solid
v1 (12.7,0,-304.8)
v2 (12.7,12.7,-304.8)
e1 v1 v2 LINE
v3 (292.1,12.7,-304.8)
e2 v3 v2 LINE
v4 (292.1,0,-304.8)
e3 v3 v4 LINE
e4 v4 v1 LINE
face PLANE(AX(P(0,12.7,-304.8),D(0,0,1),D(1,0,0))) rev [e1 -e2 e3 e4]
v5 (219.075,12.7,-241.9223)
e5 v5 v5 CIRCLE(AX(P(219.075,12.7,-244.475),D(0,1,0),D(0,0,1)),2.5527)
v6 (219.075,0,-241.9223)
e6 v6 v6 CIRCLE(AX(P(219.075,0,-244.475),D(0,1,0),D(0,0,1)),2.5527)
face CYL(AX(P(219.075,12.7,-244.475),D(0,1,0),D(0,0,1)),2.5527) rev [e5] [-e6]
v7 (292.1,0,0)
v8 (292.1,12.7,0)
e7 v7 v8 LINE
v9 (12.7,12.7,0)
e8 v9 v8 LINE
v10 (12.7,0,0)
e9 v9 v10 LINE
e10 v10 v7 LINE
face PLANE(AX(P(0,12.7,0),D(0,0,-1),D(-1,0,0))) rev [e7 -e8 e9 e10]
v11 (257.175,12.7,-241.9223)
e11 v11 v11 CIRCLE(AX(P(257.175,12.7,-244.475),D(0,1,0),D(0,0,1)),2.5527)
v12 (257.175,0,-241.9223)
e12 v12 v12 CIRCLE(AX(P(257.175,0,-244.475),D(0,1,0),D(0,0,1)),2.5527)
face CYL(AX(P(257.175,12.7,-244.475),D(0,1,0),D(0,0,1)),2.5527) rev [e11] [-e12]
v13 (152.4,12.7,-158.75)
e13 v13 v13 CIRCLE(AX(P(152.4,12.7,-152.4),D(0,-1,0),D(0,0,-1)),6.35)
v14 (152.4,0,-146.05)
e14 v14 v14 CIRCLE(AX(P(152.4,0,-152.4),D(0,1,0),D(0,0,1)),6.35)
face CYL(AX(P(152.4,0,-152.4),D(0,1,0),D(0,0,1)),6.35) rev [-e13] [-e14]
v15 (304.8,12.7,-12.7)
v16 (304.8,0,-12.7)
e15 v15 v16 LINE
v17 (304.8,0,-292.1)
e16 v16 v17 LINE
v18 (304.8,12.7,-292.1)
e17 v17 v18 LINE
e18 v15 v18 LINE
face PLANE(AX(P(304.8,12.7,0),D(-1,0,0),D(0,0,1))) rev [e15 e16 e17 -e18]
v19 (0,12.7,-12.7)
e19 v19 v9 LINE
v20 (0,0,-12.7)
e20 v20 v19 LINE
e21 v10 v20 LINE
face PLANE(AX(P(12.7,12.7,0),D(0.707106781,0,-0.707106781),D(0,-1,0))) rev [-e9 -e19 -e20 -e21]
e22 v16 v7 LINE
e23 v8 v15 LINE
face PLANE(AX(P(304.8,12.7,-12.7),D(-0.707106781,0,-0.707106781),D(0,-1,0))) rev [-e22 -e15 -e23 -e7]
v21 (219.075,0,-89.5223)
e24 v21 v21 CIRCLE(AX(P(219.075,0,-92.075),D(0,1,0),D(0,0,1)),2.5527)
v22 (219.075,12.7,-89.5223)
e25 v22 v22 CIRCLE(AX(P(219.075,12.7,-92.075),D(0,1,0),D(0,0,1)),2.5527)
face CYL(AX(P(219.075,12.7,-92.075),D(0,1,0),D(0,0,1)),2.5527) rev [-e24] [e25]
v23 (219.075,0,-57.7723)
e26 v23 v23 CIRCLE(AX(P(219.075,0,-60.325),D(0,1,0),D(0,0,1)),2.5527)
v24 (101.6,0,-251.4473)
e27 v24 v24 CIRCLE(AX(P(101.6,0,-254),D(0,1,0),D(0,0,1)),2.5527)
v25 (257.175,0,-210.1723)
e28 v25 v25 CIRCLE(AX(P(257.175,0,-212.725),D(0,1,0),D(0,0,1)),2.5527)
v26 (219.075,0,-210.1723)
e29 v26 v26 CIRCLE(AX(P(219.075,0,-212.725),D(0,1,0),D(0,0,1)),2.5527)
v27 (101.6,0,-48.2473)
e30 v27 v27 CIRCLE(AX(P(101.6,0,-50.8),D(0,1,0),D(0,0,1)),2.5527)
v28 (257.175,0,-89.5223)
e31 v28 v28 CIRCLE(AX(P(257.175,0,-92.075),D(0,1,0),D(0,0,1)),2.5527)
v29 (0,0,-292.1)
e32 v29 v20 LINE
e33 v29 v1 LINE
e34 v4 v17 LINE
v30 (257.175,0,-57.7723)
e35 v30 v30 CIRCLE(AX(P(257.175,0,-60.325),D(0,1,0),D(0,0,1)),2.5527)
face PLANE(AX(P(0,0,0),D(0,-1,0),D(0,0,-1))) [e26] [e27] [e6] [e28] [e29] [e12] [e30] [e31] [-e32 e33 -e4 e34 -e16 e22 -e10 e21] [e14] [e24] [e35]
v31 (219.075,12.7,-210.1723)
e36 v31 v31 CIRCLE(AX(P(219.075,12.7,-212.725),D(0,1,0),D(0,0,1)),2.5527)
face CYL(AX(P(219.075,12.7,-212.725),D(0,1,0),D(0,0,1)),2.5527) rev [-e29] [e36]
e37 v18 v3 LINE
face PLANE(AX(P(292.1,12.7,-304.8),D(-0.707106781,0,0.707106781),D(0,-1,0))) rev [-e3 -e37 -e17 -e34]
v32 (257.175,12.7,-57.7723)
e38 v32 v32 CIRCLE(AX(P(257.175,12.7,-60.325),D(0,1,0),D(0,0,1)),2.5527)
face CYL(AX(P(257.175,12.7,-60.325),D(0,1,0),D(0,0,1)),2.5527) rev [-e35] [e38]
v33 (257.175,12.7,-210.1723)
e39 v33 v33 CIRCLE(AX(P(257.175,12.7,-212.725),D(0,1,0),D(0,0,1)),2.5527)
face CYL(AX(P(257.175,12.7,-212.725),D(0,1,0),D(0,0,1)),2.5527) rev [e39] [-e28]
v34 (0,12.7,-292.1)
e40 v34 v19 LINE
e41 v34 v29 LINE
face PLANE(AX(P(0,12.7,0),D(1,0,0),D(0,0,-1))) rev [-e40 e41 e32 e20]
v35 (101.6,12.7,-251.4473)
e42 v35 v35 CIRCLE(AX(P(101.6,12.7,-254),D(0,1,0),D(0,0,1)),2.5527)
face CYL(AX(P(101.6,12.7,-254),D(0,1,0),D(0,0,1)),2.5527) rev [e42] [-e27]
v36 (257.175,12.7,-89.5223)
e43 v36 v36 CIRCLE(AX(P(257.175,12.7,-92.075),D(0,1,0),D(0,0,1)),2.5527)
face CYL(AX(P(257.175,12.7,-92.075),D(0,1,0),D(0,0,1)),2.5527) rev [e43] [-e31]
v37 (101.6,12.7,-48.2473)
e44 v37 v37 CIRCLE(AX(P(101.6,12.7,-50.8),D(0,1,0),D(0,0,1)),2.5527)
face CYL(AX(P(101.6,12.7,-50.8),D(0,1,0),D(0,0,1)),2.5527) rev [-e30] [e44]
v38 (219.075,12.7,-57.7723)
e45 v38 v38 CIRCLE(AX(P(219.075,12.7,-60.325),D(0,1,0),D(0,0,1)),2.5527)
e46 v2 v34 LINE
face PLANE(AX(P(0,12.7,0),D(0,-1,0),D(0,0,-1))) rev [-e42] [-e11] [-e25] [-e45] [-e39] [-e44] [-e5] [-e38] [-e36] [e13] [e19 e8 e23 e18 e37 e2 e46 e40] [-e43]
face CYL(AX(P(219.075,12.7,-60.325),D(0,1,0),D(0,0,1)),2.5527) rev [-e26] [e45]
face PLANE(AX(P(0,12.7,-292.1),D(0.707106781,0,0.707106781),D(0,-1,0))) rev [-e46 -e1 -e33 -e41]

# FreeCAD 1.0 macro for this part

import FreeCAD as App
import Part
import Sketcher
from FreeCAD import Vector
Q = App.Units.Quantity


def edges_at(feature, points):
    """Names of the edges that pass closest to the given points."""
    edges = feature.Shape.Edges
    near = lambda p: min(range(len(edges)), key=lambda i: edges[i].distToShape(Part.Vertex(*p))[0])
    return sorted({f"Edge{near(p) + 1}" for p in points})


def add_polygon(sketch, points):
    """Adds a closed chain of lines whose ends are joined by coincident constraints."""
    first, n = sketch.GeometryCount, len(points)
    for a, b in zip(points, points[1:] + points[:1]):
        sketch.addGeometry(Part.LineSegment(App.Vector(*a, 0), App.Vector(*b, 0)), False)
    for i in range(n):
        sketch.addConstraint(Sketcher.Constraint("Coincident", first + i, 2, first + (i + 1) % n, 1))

doc = App.newDocument("Part")
params = doc.addObject("Spreadsheet::Sheet", "Params")
for row, (alias, value) in enumerate([
    ("sketch1_width", "12 in"),
    ("pad1_length", "0.5 in"),
    ("chamfer_size", "0.5 in"),
    ("sketch2_diameter", "0.201 in"),
    ("hole_diameter", "0.201 in"),
    ("sketch3_diameter", "0.5 in"),
    ("sketch4_diameter", "0.201 in"),
    ("hole2_diameter", "0.201 in"),
], start=1):
    params.set(f"A{row}", alias)
    params.set(f"B{row}", "=" + value)
    params.setAlias(f"B{row}", alias)

body = doc.addObject("PartDesign::Body", "Body")

# Sketch on XZ plane
sketch1 = doc.addObject("Sketcher::SketchObject", "Sketch")
body.addObject(sketch1)
sketch1.AttachmentSupport = (doc.XZ_Plane, [""])
sketch1.MapMode = "FlatFace"
add_polygon(sketch1, [(0, -305), (0, 0), (305, 0), (305, -305)])  # lines 0-3
sketch1.addConstraint(Sketcher.Constraint("Vertical", 0))
sketch1.addConstraint(Sketcher.Constraint("Horizontal", 1))
sketch1.addConstraint(Sketcher.Constraint("Vertical", 2))
sketch1.addConstraint(Sketcher.Constraint("Horizontal", 3))
sketch1.addConstraint(Sketcher.Constraint("Coincident", 0, 2, -1, 1))
sketch1.addConstraint(Sketcher.Constraint("Equal", 3, 0))
sketch1.addConstraint(Sketcher.Constraint("DistanceX", 1, 1, 1, 2, Q("12 in")))
sketch1.setExpression("Constraints[10]", "Params.sketch1_width")
pad1 = doc.addObject("PartDesign::Pad", "Pad")
body.addObject(pad1)
pad1.Profile = sketch1
pad1.setExpression("Length", "Params.pad1_length")
pad1.Reversed = True
doc.recompute()

chamfer = doc.addObject("PartDesign::Chamfer", "Chamfer")
body.addObject(chamfer)
chamfer.Base = (pad1, edges_at(pad1, [
    (0, 6.35, -304.8),
    (304.8, 6.35, -304.8),
    (304.8, 6.35, 0),
    (0, 6.35, 0),
]))
chamfer.setExpression("Size", "Params.chamfer_size")

# Sketch on XZ plane
sketch2 = doc.addObject("Sketcher::SketchObject", "Sketch001")
body.addObject(sketch2)
sketch2.AttachmentSupport = (doc.XZ_Plane, [""])
sketch2.MapMode = "FlatFace"
sketch2.AttachmentOffset = App.Placement(Vector(0, 0, -0.5 * 25.4), App.Rotation())
sketch2.addGeometry(Part.Circle(Vector(101.6, -50.8, 0), Vector(0, 0, 1), 2.6), False)
sketch2.addGeometry(Part.Circle(Vector(101.6, -254, 0), Vector(0, 0, 1), 2.6), False)
sketch2.addConstraint(Sketcher.Constraint("Equal", 0, 1))
sketch2.addConstraint(Sketcher.Constraint("Vertical", 0, 3, 1, 3))
sketch2.addConstraint(Sketcher.Constraint("Diameter", 0, Q("0.201 in")))
sketch2.addConstraint(Sketcher.Constraint("DistanceX", -1, 1, 0, 3, Q("4 in")))
sketch2.addConstraint(Sketcher.Constraint("DistanceY", 0, 3, -1, 1, Q("2 in")))
sketch2.addConstraint(Sketcher.Constraint("DistanceY", 1, 3, -1, 1, Q("10 in")))
sketch2.setExpression("Constraints[2]", "Params.sketch2_diameter")
doc.recompute()
hole = doc.addObject("PartDesign::Hole", "Hole")
body.addObject(hole)
hole.Profile = sketch2
hole.ThreadType = "None"
hole.setExpression("Diameter", "Params.hole_diameter")
hole.DepthType = "ThroughAll"
hole.Reversed = True

# Sketch on XZ plane
sketch3 = doc.addObject("Sketcher::SketchObject", "Sketch002")
body.addObject(sketch3)
sketch3.AttachmentSupport = (doc.XZ_Plane, [""])
sketch3.MapMode = "FlatFace"
sketch3.AttachmentOffset = App.Placement(Vector(0, 0, -0.5 * 25.4), App.Rotation())
sketch3.addGeometry(Part.Circle(Vector(152, -152, 0), Vector(0, 0, 1), 6), False)
sketch3.addConstraint(Sketcher.Constraint("Diameter", 0, Q("0.5 in")))
sketch3.addConstraint(Sketcher.Constraint("DistanceX", -1, 1, 0, 3, Q("6 in")))
sketch3.addConstraint(Sketcher.Constraint("DistanceY", 0, 3, -1, 1, Q("6 in")))
sketch3.setExpression("Constraints[0]", "Params.sketch3_diameter")
pocket1 = doc.addObject("PartDesign::Pocket", "Pocket")
body.addObject(pocket1)
pocket1.Profile = sketch3
pocket1.Type = "ThroughAll"
pocket1.Midplane = True

# Sketch on XZ plane
sketch4 = doc.addObject("Sketcher::SketchObject", "Sketch003")
body.addObject(sketch4)
sketch4.AttachmentSupport = (doc.XZ_Plane, [""])
sketch4.MapMode = "FlatFace"
sketch4.AttachmentOffset = App.Placement(Vector(0, 0, -0.5 * 25.4), App.Rotation())
sketch4.addGeometry(Part.Circle(Vector(257.2, -244.5, 0), Vector(0, 0, 1), 2.6), False)
sketch4.addGeometry(Part.Circle(Vector(219.1, -244.5, 0), Vector(0, 0, 1), 2.6), False)
sketch4.addGeometry(Part.Circle(Vector(257.2, -212.7, 0), Vector(0, 0, 1), 2.6), False)
sketch4.addGeometry(Part.Circle(Vector(219.1, -212.7, 0), Vector(0, 0, 1), 2.6), False)
sketch4.addGeometry(Part.Circle(Vector(257.2, -92.1, 0), Vector(0, 0, 1), 2.6), False)
sketch4.addGeometry(Part.Circle(Vector(219.1, -92.1, 0), Vector(0, 0, 1), 2.6), False)
sketch4.addGeometry(Part.Circle(Vector(257.2, -60.3, 0), Vector(0, 0, 1), 2.6), False)
sketch4.addGeometry(Part.Circle(Vector(219.1, -60.3, 0), Vector(0, 0, 1), 2.6), False)
sketch4.addConstraint(Sketcher.Constraint("Equal", 0, 1))
sketch4.addConstraint(Sketcher.Constraint("Equal", 1, 2))
sketch4.addConstraint(Sketcher.Constraint("Equal", 2, 3))
sketch4.addConstraint(Sketcher.Constraint("Equal", 3, 4))
sketch4.addConstraint(Sketcher.Constraint("Equal", 4, 5))
sketch4.addConstraint(Sketcher.Constraint("Equal", 5, 6))
sketch4.addConstraint(Sketcher.Constraint("Equal", 6, 7))
sketch4.addConstraint(Sketcher.Constraint("Horizontal", 0, 3, 1, 3))
sketch4.addConstraint(Sketcher.Constraint("Horizontal", 2, 3, 3, 3))
sketch4.addConstraint(Sketcher.Constraint("Horizontal", 4, 3, 5, 3))
sketch4.addConstraint(Sketcher.Constraint("Horizontal", 6, 3, 7, 3))
sketch4.addConstraint(Sketcher.Constraint("Vertical", 0, 3, 2, 3))
sketch4.addConstraint(Sketcher.Constraint("Vertical", 1, 3, 3, 3))
sketch4.addConstraint(Sketcher.Constraint("Vertical", 2, 3, 4, 3))
sketch4.addConstraint(Sketcher.Constraint("Vertical", 3, 3, 5, 3))
sketch4.addConstraint(Sketcher.Constraint("Vertical", 4, 3, 6, 3))
sketch4.addConstraint(Sketcher.Constraint("Vertical", 5, 3, 7, 3))
sketch4.addConstraint(Sketcher.Constraint("Diameter", 0, Q("0.201 in")))
sketch4.addConstraint(Sketcher.Constraint("DistanceY", 0, 3, 4, 3, Q("6 in")))
sketch4.addConstraint(Sketcher.Constraint("DistanceY", 2, 3, 6, 3, Q("6 in")))
sketch4.addConstraint(Sketcher.Constraint("DistanceX", 1, 3, 0, 3, Q("1.5 in")))
sketch4.addConstraint(Sketcher.Constraint("DistanceY", 0, 3, 2, 3, Q("1.25 in")))
sketch4.addConstraint(Sketcher.Constraint("DistanceX", -1, 1, 0, 3, Q("10.125 in")))
sketch4.addConstraint(Sketcher.Constraint("DistanceY", 0, 3, -1, 1, Q("9.625 in")))
sketch4.setExpression("Constraints[17]", "Params.sketch4_diameter")
doc.recompute()
hole2 = doc.addObject("PartDesign::Hole", "Hole001")
body.addObject(hole2)
hole2.Profile = sketch4
hole2.ThreadType = "None"
hole2.setExpression("Diameter", "Params.hole2_diameter")
hole2.DepthType = "ThroughAll"
hole2.Reversed = True

doc.recompute()
